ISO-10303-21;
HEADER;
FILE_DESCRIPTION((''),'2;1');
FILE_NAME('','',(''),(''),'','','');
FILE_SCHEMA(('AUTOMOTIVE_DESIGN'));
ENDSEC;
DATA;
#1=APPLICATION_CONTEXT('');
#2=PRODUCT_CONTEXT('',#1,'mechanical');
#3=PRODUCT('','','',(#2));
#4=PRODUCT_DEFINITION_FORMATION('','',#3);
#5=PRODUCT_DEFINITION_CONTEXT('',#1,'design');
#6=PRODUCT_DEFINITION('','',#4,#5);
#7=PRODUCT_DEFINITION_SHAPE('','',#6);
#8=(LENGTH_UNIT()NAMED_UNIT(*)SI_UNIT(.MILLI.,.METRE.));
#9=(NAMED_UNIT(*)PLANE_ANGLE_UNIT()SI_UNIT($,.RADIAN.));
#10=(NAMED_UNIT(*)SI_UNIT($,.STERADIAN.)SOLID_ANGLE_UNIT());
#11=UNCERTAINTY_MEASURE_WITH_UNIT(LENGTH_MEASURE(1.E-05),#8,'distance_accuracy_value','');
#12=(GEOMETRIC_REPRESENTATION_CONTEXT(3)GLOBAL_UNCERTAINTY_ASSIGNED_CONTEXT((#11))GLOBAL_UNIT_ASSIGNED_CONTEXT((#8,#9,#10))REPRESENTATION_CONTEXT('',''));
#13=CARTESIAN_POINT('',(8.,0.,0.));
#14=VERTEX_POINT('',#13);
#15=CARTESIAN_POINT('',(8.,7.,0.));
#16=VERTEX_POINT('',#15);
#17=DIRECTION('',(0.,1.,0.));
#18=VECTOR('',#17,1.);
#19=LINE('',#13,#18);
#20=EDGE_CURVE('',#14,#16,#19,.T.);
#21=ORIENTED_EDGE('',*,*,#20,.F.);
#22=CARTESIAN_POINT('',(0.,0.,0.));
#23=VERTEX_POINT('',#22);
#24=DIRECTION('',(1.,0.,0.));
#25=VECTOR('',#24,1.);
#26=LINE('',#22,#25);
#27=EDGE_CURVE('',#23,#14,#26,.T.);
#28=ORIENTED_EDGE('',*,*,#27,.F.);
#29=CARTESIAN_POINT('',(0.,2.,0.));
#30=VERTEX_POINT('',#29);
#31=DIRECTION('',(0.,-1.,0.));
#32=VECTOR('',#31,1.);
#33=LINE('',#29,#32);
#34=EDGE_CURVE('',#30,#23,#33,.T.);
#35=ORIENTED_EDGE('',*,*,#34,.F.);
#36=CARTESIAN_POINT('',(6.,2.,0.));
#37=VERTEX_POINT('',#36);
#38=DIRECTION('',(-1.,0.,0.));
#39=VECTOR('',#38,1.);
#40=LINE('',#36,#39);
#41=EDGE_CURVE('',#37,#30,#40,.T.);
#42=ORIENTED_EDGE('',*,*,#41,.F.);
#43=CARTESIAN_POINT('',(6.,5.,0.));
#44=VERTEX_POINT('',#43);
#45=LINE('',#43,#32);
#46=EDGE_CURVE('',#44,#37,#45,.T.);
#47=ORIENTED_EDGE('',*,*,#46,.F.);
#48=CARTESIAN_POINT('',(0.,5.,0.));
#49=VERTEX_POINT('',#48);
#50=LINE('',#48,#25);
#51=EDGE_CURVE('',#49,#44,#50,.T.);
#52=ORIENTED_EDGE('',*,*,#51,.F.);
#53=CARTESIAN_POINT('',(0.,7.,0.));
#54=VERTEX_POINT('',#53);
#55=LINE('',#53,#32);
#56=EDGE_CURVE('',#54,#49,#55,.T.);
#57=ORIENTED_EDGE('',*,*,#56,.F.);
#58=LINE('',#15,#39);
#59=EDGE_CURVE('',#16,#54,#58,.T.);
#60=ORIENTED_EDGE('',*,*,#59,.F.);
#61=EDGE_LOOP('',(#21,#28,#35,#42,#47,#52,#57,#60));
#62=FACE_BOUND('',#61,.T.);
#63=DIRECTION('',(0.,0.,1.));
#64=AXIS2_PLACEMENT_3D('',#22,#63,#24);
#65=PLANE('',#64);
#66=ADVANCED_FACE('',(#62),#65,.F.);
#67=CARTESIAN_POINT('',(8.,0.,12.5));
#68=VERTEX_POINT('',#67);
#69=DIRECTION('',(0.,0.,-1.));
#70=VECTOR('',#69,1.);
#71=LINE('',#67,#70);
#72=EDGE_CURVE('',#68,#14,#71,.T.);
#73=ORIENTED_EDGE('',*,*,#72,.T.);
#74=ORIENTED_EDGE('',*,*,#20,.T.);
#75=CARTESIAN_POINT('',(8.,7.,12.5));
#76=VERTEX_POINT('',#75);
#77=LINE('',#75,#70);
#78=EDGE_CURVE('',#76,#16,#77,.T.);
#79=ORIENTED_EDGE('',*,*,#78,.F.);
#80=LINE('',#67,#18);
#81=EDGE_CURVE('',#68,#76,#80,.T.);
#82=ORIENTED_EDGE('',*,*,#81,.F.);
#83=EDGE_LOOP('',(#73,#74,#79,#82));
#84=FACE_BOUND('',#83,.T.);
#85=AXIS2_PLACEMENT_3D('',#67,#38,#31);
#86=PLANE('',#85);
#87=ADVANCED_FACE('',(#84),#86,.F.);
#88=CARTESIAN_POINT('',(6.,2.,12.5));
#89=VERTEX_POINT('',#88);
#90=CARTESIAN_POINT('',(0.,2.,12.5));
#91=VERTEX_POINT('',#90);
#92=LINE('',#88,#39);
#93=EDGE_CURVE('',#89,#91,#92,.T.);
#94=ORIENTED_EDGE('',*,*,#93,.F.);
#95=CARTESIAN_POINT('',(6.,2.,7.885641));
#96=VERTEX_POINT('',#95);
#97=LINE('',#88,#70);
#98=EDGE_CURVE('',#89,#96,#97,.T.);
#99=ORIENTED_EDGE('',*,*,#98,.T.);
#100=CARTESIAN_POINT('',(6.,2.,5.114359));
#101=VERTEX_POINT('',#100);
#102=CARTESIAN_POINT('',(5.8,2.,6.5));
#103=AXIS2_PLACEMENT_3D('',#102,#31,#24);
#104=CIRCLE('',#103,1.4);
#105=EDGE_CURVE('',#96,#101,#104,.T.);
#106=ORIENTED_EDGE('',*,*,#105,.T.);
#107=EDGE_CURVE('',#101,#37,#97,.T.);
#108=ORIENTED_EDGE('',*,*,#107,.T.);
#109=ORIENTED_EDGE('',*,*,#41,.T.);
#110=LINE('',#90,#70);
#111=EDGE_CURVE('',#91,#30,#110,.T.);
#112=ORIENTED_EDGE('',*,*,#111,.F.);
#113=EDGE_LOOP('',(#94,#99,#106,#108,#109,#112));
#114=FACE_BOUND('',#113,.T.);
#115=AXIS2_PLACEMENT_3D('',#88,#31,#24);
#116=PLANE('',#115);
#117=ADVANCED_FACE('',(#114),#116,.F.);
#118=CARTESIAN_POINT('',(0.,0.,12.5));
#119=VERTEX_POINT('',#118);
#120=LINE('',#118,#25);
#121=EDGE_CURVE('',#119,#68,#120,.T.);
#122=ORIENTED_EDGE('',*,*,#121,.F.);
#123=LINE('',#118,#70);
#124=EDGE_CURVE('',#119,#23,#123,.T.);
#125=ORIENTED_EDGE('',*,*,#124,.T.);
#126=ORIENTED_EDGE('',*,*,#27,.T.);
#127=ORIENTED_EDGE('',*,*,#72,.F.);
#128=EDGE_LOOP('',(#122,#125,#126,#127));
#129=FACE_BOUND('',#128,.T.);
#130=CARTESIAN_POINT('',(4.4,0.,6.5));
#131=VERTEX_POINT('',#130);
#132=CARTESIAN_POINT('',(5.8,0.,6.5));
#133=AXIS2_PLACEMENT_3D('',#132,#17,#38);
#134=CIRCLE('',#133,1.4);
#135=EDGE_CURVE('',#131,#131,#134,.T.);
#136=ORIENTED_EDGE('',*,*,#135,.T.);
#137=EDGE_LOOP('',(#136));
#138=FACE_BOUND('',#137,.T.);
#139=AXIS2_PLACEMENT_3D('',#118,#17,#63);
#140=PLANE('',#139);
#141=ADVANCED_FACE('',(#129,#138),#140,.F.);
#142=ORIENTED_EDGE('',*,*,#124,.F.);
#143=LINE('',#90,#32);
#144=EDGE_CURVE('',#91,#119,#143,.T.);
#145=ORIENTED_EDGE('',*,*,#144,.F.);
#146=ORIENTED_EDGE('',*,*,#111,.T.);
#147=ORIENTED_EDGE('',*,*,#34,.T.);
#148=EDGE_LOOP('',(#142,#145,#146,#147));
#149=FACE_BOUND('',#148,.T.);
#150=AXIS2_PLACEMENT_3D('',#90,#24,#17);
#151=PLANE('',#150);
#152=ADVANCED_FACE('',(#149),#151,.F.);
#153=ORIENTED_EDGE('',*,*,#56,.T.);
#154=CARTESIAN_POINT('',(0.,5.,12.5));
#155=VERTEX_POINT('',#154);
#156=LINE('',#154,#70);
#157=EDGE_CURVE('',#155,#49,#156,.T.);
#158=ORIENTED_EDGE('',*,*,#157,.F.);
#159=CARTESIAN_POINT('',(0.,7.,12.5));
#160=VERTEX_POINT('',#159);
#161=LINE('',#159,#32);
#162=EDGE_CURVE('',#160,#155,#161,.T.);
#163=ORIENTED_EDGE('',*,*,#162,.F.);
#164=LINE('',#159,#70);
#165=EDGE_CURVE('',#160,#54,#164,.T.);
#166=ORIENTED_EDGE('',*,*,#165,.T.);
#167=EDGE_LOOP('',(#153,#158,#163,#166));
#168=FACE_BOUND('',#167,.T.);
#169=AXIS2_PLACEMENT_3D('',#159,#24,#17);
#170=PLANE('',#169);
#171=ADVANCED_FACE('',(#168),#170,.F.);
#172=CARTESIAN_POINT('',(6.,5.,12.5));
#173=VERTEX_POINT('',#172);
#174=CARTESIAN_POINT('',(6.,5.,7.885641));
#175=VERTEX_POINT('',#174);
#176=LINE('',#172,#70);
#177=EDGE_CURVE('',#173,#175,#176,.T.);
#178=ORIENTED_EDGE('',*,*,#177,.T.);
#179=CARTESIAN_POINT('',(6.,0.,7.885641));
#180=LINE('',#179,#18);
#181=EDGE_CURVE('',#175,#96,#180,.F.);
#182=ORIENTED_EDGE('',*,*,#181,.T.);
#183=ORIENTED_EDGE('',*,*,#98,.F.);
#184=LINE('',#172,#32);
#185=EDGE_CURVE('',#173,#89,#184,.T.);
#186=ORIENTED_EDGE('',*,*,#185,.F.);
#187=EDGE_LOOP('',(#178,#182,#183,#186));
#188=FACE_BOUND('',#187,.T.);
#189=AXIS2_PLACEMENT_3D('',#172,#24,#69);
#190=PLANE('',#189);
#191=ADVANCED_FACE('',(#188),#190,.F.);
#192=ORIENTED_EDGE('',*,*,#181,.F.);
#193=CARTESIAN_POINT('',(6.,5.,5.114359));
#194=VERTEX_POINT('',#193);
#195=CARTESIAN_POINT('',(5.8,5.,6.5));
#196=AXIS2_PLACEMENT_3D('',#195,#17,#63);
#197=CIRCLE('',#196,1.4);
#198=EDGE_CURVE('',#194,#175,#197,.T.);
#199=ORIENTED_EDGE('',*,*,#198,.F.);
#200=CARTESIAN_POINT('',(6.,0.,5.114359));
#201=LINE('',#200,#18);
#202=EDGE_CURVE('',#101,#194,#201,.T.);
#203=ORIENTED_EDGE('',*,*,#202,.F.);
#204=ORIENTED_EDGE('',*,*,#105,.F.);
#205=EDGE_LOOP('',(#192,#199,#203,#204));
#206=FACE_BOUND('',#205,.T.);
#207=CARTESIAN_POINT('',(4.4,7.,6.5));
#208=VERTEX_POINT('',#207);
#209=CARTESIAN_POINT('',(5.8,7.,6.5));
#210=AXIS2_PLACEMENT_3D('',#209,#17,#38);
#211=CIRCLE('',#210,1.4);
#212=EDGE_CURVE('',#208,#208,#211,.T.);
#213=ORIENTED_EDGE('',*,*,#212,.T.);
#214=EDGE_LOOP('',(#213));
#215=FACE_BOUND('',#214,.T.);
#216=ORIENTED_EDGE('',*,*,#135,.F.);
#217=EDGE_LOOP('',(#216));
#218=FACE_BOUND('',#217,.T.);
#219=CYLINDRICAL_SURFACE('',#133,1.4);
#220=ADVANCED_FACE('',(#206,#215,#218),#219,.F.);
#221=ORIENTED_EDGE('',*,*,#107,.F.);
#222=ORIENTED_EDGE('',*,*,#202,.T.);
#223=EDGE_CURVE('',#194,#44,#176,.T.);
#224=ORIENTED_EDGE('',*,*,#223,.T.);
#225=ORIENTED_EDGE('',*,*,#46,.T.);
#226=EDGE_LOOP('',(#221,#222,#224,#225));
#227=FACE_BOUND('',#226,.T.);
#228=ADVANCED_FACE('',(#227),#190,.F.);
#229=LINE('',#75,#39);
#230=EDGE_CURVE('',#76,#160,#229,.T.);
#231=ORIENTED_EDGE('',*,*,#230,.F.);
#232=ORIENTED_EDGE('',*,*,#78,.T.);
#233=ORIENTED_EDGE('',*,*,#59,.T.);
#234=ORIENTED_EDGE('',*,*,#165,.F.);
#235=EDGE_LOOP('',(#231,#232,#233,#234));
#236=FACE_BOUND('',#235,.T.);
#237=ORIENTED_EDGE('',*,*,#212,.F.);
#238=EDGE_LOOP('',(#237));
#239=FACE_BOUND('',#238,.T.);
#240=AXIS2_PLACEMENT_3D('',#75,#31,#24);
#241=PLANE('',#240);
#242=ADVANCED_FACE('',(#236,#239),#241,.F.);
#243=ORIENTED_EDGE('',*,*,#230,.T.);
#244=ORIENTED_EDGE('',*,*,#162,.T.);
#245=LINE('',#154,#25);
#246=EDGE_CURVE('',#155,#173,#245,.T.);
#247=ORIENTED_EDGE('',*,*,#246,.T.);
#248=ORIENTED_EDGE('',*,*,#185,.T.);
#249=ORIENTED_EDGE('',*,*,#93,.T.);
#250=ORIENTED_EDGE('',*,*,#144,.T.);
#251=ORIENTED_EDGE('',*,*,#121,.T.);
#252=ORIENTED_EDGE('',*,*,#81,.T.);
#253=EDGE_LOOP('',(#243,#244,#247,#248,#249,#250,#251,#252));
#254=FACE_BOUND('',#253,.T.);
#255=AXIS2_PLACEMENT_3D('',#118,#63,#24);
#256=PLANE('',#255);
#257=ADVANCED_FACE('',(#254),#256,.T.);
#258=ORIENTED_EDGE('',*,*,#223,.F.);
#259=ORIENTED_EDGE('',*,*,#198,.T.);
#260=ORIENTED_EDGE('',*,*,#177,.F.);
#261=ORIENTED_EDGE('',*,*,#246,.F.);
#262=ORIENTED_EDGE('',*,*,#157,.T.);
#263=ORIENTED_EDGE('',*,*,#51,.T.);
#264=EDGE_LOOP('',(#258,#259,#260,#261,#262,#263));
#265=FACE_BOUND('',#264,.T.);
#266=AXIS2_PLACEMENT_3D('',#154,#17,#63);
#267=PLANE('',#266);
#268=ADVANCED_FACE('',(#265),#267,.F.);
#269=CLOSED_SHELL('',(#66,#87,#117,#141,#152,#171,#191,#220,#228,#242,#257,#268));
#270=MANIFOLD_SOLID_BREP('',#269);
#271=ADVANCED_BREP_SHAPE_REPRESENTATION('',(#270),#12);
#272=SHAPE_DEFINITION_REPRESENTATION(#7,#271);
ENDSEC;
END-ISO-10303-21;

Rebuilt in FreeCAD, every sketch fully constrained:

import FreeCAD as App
import Part
import Sketcher

V = App.Vector
Q = App.Units.Quantity

doc = App.newDocument("Part")
body = doc.addObject("PartDesign::Body", "Body")

# Sketch on XY plane
sketch1 = doc.addObject("Sketcher::SketchObject", "Sketch")
body.addObject(sketch1)
sketch1.AttachmentSupport = (doc.XY_Plane, [""])
sketch1.MapMode = "FlatFace"
sketch1.addGeometry(Part.LineSegment(V(0, 0, 0), V(8, 0, 0)), False)
sketch1.addGeometry(Part.LineSegment(V(8, 0, 0), V(8, 7, 0)), False)
sketch1.addGeometry(Part.LineSegment(V(8, 7, 0), V(0, 7, 0)), False)
sketch1.addGeometry(Part.LineSegment(V(0, 7, 0), V(0, 5, 0)), False)
sketch1.addGeometry(Part.LineSegment(V(0, 5, 0), V(6, 5, 0)), False)
sketch1.addGeometry(Part.LineSegment(V(6, 5, 0), V(6, 2, 0)), False)
sketch1.addGeometry(Part.LineSegment(V(6, 2, 0), V(0, 2, 0)), False)
sketch1.addGeometry(Part.LineSegment(V(0, 2, 0), V(0, 0, 0)), False)
sketch1.addConstraint(Sketcher.Constraint("Coincident", 0, 2, 1, 1))
sketch1.addConstraint(Sketcher.Constraint("Coincident", 1, 2, 2, 1))
sketch1.addConstraint(Sketcher.Constraint("Coincident", 2, 2, 3, 1))
sketch1.addConstraint(Sketcher.Constraint("Coincident", 3, 2, 4, 1))
sketch1.addConstraint(Sketcher.Constraint("Coincident", 4, 2, 5, 1))
sketch1.addConstraint(Sketcher.Constraint("Coincident", 5, 2, 6, 1))
sketch1.addConstraint(Sketcher.Constraint("Coincident", 6, 2, 7, 1))
sketch1.addConstraint(Sketcher.Constraint("Coincident", 7, 2, 0, 1))
sketch1.addConstraint(Sketcher.Constraint("Horizontal", 0))
sketch1.addConstraint(Sketcher.Constraint("Vertical", 1))
sketch1.addConstraint(Sketcher.Constraint("Horizontal", 2))
sketch1.addConstraint(Sketcher.Constraint("Vertical", 3))
sketch1.addConstraint(Sketcher.Constraint("Horizontal", 4))
sketch1.addConstraint(Sketcher.Constraint("Vertical", 5))
sketch1.addConstraint(Sketcher.Constraint("Horizontal", 6))
sketch1.addConstraint(Sketcher.Constraint("Vertical", 7))
sketch1.addConstraint(Sketcher.Constraint("Coincident", 7, 2, -1, 1))
sketch1.addConstraint(Sketcher.Constraint("PointOnObject", 2, 2, -2))
sketch1.addConstraint(Sketcher.Constraint("Equal", 3, 7))
sketch1.addConstraint(Sketcher.Constraint("DistanceX", 0, 1, 0, 2, Q("8 mm")))
sketch1.addConstraint(Sketcher.Constraint("DistanceX", 4, 1, 4, 2, Q("6 mm")))
sketch1.addConstraint(Sketcher.Constraint("DistanceY", 1, 1, 1, 2, Q("7 mm")))
sketch1.addConstraint(Sketcher.Constraint("DistanceY", 3, 2, 3, 1, Q("2 mm")))
pad1 = doc.addObject("PartDesign::Pad", "Pad")
body.addObject(pad1)
pad1.Profile = sketch1
pad1.Length = 12.5

# Sketch on XZ plane
sketch2 = doc.addObject("Sketcher::SketchObject", "Sketch001")
body.addObject(sketch2)
sketch2.AttachmentSupport = (doc.XZ_Plane, [""])
sketch2.MapMode = "FlatFace"
sketch2.AttachmentOffset = App.Placement(V(0, 0, -7), App.Rotation())
sketch2.addGeometry(Part.Circle(V(5.8, 6.5, 0), V(0, 0, 1), 1.4), False)
sketch2.addConstraint(Sketcher.Constraint("Diameter", 0, Q("2.8 mm")))
sketch2.addConstraint(Sketcher.Constraint("DistanceX", -1, 1, 0, 3, Q("5.8 mm")))
sketch2.addConstraint(Sketcher.Constraint("DistanceY", -1, 1, 0, 3, Q("6.5 mm")))
pocket1 = doc.addObject("PartDesign::Pocket", "Pocket")
body.addObject(pocket1)
pocket1.Profile = sketch2
pocket1.Type = "ThroughAll"
pocket1.Reversed = True

doc.recompute()
